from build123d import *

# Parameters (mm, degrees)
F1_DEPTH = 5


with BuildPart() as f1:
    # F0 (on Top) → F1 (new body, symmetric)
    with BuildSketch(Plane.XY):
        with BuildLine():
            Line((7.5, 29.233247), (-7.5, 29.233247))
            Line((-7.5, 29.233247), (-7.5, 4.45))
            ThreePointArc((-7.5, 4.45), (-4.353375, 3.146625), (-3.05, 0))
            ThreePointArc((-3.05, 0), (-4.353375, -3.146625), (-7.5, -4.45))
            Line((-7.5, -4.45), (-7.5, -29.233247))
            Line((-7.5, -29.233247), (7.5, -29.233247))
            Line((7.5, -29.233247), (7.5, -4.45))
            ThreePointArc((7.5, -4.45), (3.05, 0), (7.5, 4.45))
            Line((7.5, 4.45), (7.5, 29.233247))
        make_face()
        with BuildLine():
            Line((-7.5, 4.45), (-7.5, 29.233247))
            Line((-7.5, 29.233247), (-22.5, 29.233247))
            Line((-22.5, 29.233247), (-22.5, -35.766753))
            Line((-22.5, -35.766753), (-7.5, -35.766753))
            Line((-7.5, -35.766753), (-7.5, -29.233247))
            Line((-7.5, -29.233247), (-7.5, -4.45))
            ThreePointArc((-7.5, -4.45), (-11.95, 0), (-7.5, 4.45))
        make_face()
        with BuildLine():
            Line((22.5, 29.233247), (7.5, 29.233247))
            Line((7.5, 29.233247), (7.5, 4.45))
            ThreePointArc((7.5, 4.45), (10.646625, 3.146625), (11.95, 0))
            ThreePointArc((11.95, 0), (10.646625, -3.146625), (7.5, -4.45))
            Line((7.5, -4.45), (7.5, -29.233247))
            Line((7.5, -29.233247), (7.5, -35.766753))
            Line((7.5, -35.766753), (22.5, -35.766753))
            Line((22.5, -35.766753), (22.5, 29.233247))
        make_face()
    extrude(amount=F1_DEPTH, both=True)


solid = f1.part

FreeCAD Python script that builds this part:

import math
import FreeCAD as App
import Part
import Sketcher

V = App.Vector


def add_polygon(sketch, points):
    """Adds a closed chain of lines whose ends are joined by coincident constraints."""
    first, n = sketch.GeometryCount, len(points)
    for a, b in zip(points, points[1:] + points[:1]):
        sketch.addGeometry(Part.LineSegment(App.Vector(*a, 0), App.Vector(*b, 0)), False)
    for i in range(n):
        sketch.addConstraint(Sketcher.Constraint("Coincident", first + i, 2, first + (i + 1) % n, 1))

doc = App.newDocument("Part")
params = doc.addObject("Spreadsheet::Sheet", "Params")
for row, (alias, value) in enumerate([
    ("sketch1_width", "15 mm"),
    ("sketch1_height", "65 mm"),
    ("sketch1_radius", "4.45 mm"),
    ("pad1_length", "10 mm"),
], start=1):
    params.set(f"A{row}", alias)
    params.set(f"B{row}", "=" + value)
    params.setAlias(f"B{row}", alias)

body = doc.addObject("PartDesign::Body", "Body")

# Sketch on XY plane
sketch1 = body.newObject("Sketcher::SketchObject", "Sketch")
sketch1.AttachmentSupport = (doc.getObject("XY_Plane"), [""])
sketch1.MapMode = "FlatFace"
add_polygon(sketch1, [(-22.5, 29.233247), (-22.5, -35.766753), (-7.5, -35.766753), (-7.5, -29.233247), (7.5, -29.233247), (7.5, -35.766753), (22.5, -35.766753), (22.5, 29.233247)])  # lines 0-7
sketch1.addGeometry(Part.ArcOfCircle(Part.Circle(V(7.5, 0, 0), V(0, 0, 1), 4.45), math.radians(90), math.radians(270)), False)  # 8
sketch1.addGeometry(Part.ArcOfCircle(Part.Circle(V(7.499999, -0.000001, 0), V(0, 0, 1), 4.450001), math.radians(0.000008), math.radians(89.999992)), False)  # 9
sketch1.addGeometry(Part.ArcOfCircle(Part.Circle(V(7.499999, 0.000001, 0), V(0, 0, 1), 4.450001), math.radians(-89.999992), math.radians(-0.000008)), False)  # 10
sketch1.addGeometry(Part.ArcOfCircle(Part.Circle(V(-7.500001, -0.000001, 0), V(0, 0, 1), 4.450001), math.radians(0.000008), math.radians(89.999992)), False)  # 11
sketch1.addGeometry(Part.ArcOfCircle(Part.Circle(V(-7.500001, 0.000001, 0), V(0, 0, 1), 4.450001), math.radians(-89.999992), math.radians(-0.000008)), False)  # 12
sketch1.addGeometry(Part.ArcOfCircle(Part.Circle(V(-7.5, 0, 0), V(0, 0, 1), 4.45), math.radians(90), math.radians(270)), False)  # 13
sketch1.addConstraint([
    Sketcher.Constraint("Tangent", 8, 1, 9, 2),
    Sketcher.Constraint("Tangent", 9, 1, 10, 2),
    Sketcher.Constraint("Tangent", 10, 1, 8, 2),
    Sketcher.Constraint("Tangent", 11, 1, 12, 2),
    Sketcher.Constraint("Tangent", 12, 1, 13, 2),
    Sketcher.Constraint("Tangent", 13, 1, 11, 2),
    Sketcher.Constraint("Vertical", 0),
    Sketcher.Constraint("Horizontal", 1),
    Sketcher.Constraint("Vertical", 2),
    Sketcher.Constraint("Horizontal", 3),
    Sketcher.Constraint("Vertical", 4),
    Sketcher.Constraint("Horizontal", 5),
    Sketcher.Constraint("Vertical", 6),
    Sketcher.Constraint("Horizontal", 7),
    Sketcher.Constraint("Equal", 10, 11),
    Sketcher.Constraint("Symmetric", 8, 3, 11, 3, -1, 1),
    Sketcher.Constraint("Symmetric", 1, 2, 4, 2, -2),
    Sketcher.Constraint("Symmetric", 10, 1, 12, 1, -2),
    Sketcher.Constraint("PointOnObject", 9, 1, -1),
    Sketcher.Constraint("PointOnObject", 11, 1, -1),
    Sketcher.Constraint("Vertical", 13, 3, 1, 2),
    Sketcher.Constraint("Vertical", 4, 2, 8, 1),
    Sketcher.Constraint("Vertical", 8, 1, 10, 1),
    Sketcher.Constraint("Vertical", 12, 1, 13, 1),
    Sketcher.Constraint("Equal", 1, 3),
    Sketcher.Constraint("Equal", 3, 5),
    Sketcher.Constraint("DistanceX", 1, 1, 1, 2, 15.0),
    Sketcher.Constraint("DistanceY", 0, 2, 0, 1, 65.0),
    Sketcher.Constraint("Radius", 8, 4.45),
    Sketcher.Constraint("DistanceY", 2, 1, 2, 2, 6.533506),
    Sketcher.Constraint("DistanceY", 0, 2, -1, 1, 35.766753),
])
sketch1.setExpression("Constraints[34]", "Params.sketch1_width")
sketch1.setExpression("Constraints[35]", "Params.sketch1_height")
sketch1.setExpression("Constraints[36]", "Params.sketch1_radius")
pad1 = body.newObject("PartDesign::Pad", "Pad")
pad1.Profile = sketch1
pad1.setExpression("Length", "Params.pad1_length")
pad1.Midplane = True

doc.recompute()
